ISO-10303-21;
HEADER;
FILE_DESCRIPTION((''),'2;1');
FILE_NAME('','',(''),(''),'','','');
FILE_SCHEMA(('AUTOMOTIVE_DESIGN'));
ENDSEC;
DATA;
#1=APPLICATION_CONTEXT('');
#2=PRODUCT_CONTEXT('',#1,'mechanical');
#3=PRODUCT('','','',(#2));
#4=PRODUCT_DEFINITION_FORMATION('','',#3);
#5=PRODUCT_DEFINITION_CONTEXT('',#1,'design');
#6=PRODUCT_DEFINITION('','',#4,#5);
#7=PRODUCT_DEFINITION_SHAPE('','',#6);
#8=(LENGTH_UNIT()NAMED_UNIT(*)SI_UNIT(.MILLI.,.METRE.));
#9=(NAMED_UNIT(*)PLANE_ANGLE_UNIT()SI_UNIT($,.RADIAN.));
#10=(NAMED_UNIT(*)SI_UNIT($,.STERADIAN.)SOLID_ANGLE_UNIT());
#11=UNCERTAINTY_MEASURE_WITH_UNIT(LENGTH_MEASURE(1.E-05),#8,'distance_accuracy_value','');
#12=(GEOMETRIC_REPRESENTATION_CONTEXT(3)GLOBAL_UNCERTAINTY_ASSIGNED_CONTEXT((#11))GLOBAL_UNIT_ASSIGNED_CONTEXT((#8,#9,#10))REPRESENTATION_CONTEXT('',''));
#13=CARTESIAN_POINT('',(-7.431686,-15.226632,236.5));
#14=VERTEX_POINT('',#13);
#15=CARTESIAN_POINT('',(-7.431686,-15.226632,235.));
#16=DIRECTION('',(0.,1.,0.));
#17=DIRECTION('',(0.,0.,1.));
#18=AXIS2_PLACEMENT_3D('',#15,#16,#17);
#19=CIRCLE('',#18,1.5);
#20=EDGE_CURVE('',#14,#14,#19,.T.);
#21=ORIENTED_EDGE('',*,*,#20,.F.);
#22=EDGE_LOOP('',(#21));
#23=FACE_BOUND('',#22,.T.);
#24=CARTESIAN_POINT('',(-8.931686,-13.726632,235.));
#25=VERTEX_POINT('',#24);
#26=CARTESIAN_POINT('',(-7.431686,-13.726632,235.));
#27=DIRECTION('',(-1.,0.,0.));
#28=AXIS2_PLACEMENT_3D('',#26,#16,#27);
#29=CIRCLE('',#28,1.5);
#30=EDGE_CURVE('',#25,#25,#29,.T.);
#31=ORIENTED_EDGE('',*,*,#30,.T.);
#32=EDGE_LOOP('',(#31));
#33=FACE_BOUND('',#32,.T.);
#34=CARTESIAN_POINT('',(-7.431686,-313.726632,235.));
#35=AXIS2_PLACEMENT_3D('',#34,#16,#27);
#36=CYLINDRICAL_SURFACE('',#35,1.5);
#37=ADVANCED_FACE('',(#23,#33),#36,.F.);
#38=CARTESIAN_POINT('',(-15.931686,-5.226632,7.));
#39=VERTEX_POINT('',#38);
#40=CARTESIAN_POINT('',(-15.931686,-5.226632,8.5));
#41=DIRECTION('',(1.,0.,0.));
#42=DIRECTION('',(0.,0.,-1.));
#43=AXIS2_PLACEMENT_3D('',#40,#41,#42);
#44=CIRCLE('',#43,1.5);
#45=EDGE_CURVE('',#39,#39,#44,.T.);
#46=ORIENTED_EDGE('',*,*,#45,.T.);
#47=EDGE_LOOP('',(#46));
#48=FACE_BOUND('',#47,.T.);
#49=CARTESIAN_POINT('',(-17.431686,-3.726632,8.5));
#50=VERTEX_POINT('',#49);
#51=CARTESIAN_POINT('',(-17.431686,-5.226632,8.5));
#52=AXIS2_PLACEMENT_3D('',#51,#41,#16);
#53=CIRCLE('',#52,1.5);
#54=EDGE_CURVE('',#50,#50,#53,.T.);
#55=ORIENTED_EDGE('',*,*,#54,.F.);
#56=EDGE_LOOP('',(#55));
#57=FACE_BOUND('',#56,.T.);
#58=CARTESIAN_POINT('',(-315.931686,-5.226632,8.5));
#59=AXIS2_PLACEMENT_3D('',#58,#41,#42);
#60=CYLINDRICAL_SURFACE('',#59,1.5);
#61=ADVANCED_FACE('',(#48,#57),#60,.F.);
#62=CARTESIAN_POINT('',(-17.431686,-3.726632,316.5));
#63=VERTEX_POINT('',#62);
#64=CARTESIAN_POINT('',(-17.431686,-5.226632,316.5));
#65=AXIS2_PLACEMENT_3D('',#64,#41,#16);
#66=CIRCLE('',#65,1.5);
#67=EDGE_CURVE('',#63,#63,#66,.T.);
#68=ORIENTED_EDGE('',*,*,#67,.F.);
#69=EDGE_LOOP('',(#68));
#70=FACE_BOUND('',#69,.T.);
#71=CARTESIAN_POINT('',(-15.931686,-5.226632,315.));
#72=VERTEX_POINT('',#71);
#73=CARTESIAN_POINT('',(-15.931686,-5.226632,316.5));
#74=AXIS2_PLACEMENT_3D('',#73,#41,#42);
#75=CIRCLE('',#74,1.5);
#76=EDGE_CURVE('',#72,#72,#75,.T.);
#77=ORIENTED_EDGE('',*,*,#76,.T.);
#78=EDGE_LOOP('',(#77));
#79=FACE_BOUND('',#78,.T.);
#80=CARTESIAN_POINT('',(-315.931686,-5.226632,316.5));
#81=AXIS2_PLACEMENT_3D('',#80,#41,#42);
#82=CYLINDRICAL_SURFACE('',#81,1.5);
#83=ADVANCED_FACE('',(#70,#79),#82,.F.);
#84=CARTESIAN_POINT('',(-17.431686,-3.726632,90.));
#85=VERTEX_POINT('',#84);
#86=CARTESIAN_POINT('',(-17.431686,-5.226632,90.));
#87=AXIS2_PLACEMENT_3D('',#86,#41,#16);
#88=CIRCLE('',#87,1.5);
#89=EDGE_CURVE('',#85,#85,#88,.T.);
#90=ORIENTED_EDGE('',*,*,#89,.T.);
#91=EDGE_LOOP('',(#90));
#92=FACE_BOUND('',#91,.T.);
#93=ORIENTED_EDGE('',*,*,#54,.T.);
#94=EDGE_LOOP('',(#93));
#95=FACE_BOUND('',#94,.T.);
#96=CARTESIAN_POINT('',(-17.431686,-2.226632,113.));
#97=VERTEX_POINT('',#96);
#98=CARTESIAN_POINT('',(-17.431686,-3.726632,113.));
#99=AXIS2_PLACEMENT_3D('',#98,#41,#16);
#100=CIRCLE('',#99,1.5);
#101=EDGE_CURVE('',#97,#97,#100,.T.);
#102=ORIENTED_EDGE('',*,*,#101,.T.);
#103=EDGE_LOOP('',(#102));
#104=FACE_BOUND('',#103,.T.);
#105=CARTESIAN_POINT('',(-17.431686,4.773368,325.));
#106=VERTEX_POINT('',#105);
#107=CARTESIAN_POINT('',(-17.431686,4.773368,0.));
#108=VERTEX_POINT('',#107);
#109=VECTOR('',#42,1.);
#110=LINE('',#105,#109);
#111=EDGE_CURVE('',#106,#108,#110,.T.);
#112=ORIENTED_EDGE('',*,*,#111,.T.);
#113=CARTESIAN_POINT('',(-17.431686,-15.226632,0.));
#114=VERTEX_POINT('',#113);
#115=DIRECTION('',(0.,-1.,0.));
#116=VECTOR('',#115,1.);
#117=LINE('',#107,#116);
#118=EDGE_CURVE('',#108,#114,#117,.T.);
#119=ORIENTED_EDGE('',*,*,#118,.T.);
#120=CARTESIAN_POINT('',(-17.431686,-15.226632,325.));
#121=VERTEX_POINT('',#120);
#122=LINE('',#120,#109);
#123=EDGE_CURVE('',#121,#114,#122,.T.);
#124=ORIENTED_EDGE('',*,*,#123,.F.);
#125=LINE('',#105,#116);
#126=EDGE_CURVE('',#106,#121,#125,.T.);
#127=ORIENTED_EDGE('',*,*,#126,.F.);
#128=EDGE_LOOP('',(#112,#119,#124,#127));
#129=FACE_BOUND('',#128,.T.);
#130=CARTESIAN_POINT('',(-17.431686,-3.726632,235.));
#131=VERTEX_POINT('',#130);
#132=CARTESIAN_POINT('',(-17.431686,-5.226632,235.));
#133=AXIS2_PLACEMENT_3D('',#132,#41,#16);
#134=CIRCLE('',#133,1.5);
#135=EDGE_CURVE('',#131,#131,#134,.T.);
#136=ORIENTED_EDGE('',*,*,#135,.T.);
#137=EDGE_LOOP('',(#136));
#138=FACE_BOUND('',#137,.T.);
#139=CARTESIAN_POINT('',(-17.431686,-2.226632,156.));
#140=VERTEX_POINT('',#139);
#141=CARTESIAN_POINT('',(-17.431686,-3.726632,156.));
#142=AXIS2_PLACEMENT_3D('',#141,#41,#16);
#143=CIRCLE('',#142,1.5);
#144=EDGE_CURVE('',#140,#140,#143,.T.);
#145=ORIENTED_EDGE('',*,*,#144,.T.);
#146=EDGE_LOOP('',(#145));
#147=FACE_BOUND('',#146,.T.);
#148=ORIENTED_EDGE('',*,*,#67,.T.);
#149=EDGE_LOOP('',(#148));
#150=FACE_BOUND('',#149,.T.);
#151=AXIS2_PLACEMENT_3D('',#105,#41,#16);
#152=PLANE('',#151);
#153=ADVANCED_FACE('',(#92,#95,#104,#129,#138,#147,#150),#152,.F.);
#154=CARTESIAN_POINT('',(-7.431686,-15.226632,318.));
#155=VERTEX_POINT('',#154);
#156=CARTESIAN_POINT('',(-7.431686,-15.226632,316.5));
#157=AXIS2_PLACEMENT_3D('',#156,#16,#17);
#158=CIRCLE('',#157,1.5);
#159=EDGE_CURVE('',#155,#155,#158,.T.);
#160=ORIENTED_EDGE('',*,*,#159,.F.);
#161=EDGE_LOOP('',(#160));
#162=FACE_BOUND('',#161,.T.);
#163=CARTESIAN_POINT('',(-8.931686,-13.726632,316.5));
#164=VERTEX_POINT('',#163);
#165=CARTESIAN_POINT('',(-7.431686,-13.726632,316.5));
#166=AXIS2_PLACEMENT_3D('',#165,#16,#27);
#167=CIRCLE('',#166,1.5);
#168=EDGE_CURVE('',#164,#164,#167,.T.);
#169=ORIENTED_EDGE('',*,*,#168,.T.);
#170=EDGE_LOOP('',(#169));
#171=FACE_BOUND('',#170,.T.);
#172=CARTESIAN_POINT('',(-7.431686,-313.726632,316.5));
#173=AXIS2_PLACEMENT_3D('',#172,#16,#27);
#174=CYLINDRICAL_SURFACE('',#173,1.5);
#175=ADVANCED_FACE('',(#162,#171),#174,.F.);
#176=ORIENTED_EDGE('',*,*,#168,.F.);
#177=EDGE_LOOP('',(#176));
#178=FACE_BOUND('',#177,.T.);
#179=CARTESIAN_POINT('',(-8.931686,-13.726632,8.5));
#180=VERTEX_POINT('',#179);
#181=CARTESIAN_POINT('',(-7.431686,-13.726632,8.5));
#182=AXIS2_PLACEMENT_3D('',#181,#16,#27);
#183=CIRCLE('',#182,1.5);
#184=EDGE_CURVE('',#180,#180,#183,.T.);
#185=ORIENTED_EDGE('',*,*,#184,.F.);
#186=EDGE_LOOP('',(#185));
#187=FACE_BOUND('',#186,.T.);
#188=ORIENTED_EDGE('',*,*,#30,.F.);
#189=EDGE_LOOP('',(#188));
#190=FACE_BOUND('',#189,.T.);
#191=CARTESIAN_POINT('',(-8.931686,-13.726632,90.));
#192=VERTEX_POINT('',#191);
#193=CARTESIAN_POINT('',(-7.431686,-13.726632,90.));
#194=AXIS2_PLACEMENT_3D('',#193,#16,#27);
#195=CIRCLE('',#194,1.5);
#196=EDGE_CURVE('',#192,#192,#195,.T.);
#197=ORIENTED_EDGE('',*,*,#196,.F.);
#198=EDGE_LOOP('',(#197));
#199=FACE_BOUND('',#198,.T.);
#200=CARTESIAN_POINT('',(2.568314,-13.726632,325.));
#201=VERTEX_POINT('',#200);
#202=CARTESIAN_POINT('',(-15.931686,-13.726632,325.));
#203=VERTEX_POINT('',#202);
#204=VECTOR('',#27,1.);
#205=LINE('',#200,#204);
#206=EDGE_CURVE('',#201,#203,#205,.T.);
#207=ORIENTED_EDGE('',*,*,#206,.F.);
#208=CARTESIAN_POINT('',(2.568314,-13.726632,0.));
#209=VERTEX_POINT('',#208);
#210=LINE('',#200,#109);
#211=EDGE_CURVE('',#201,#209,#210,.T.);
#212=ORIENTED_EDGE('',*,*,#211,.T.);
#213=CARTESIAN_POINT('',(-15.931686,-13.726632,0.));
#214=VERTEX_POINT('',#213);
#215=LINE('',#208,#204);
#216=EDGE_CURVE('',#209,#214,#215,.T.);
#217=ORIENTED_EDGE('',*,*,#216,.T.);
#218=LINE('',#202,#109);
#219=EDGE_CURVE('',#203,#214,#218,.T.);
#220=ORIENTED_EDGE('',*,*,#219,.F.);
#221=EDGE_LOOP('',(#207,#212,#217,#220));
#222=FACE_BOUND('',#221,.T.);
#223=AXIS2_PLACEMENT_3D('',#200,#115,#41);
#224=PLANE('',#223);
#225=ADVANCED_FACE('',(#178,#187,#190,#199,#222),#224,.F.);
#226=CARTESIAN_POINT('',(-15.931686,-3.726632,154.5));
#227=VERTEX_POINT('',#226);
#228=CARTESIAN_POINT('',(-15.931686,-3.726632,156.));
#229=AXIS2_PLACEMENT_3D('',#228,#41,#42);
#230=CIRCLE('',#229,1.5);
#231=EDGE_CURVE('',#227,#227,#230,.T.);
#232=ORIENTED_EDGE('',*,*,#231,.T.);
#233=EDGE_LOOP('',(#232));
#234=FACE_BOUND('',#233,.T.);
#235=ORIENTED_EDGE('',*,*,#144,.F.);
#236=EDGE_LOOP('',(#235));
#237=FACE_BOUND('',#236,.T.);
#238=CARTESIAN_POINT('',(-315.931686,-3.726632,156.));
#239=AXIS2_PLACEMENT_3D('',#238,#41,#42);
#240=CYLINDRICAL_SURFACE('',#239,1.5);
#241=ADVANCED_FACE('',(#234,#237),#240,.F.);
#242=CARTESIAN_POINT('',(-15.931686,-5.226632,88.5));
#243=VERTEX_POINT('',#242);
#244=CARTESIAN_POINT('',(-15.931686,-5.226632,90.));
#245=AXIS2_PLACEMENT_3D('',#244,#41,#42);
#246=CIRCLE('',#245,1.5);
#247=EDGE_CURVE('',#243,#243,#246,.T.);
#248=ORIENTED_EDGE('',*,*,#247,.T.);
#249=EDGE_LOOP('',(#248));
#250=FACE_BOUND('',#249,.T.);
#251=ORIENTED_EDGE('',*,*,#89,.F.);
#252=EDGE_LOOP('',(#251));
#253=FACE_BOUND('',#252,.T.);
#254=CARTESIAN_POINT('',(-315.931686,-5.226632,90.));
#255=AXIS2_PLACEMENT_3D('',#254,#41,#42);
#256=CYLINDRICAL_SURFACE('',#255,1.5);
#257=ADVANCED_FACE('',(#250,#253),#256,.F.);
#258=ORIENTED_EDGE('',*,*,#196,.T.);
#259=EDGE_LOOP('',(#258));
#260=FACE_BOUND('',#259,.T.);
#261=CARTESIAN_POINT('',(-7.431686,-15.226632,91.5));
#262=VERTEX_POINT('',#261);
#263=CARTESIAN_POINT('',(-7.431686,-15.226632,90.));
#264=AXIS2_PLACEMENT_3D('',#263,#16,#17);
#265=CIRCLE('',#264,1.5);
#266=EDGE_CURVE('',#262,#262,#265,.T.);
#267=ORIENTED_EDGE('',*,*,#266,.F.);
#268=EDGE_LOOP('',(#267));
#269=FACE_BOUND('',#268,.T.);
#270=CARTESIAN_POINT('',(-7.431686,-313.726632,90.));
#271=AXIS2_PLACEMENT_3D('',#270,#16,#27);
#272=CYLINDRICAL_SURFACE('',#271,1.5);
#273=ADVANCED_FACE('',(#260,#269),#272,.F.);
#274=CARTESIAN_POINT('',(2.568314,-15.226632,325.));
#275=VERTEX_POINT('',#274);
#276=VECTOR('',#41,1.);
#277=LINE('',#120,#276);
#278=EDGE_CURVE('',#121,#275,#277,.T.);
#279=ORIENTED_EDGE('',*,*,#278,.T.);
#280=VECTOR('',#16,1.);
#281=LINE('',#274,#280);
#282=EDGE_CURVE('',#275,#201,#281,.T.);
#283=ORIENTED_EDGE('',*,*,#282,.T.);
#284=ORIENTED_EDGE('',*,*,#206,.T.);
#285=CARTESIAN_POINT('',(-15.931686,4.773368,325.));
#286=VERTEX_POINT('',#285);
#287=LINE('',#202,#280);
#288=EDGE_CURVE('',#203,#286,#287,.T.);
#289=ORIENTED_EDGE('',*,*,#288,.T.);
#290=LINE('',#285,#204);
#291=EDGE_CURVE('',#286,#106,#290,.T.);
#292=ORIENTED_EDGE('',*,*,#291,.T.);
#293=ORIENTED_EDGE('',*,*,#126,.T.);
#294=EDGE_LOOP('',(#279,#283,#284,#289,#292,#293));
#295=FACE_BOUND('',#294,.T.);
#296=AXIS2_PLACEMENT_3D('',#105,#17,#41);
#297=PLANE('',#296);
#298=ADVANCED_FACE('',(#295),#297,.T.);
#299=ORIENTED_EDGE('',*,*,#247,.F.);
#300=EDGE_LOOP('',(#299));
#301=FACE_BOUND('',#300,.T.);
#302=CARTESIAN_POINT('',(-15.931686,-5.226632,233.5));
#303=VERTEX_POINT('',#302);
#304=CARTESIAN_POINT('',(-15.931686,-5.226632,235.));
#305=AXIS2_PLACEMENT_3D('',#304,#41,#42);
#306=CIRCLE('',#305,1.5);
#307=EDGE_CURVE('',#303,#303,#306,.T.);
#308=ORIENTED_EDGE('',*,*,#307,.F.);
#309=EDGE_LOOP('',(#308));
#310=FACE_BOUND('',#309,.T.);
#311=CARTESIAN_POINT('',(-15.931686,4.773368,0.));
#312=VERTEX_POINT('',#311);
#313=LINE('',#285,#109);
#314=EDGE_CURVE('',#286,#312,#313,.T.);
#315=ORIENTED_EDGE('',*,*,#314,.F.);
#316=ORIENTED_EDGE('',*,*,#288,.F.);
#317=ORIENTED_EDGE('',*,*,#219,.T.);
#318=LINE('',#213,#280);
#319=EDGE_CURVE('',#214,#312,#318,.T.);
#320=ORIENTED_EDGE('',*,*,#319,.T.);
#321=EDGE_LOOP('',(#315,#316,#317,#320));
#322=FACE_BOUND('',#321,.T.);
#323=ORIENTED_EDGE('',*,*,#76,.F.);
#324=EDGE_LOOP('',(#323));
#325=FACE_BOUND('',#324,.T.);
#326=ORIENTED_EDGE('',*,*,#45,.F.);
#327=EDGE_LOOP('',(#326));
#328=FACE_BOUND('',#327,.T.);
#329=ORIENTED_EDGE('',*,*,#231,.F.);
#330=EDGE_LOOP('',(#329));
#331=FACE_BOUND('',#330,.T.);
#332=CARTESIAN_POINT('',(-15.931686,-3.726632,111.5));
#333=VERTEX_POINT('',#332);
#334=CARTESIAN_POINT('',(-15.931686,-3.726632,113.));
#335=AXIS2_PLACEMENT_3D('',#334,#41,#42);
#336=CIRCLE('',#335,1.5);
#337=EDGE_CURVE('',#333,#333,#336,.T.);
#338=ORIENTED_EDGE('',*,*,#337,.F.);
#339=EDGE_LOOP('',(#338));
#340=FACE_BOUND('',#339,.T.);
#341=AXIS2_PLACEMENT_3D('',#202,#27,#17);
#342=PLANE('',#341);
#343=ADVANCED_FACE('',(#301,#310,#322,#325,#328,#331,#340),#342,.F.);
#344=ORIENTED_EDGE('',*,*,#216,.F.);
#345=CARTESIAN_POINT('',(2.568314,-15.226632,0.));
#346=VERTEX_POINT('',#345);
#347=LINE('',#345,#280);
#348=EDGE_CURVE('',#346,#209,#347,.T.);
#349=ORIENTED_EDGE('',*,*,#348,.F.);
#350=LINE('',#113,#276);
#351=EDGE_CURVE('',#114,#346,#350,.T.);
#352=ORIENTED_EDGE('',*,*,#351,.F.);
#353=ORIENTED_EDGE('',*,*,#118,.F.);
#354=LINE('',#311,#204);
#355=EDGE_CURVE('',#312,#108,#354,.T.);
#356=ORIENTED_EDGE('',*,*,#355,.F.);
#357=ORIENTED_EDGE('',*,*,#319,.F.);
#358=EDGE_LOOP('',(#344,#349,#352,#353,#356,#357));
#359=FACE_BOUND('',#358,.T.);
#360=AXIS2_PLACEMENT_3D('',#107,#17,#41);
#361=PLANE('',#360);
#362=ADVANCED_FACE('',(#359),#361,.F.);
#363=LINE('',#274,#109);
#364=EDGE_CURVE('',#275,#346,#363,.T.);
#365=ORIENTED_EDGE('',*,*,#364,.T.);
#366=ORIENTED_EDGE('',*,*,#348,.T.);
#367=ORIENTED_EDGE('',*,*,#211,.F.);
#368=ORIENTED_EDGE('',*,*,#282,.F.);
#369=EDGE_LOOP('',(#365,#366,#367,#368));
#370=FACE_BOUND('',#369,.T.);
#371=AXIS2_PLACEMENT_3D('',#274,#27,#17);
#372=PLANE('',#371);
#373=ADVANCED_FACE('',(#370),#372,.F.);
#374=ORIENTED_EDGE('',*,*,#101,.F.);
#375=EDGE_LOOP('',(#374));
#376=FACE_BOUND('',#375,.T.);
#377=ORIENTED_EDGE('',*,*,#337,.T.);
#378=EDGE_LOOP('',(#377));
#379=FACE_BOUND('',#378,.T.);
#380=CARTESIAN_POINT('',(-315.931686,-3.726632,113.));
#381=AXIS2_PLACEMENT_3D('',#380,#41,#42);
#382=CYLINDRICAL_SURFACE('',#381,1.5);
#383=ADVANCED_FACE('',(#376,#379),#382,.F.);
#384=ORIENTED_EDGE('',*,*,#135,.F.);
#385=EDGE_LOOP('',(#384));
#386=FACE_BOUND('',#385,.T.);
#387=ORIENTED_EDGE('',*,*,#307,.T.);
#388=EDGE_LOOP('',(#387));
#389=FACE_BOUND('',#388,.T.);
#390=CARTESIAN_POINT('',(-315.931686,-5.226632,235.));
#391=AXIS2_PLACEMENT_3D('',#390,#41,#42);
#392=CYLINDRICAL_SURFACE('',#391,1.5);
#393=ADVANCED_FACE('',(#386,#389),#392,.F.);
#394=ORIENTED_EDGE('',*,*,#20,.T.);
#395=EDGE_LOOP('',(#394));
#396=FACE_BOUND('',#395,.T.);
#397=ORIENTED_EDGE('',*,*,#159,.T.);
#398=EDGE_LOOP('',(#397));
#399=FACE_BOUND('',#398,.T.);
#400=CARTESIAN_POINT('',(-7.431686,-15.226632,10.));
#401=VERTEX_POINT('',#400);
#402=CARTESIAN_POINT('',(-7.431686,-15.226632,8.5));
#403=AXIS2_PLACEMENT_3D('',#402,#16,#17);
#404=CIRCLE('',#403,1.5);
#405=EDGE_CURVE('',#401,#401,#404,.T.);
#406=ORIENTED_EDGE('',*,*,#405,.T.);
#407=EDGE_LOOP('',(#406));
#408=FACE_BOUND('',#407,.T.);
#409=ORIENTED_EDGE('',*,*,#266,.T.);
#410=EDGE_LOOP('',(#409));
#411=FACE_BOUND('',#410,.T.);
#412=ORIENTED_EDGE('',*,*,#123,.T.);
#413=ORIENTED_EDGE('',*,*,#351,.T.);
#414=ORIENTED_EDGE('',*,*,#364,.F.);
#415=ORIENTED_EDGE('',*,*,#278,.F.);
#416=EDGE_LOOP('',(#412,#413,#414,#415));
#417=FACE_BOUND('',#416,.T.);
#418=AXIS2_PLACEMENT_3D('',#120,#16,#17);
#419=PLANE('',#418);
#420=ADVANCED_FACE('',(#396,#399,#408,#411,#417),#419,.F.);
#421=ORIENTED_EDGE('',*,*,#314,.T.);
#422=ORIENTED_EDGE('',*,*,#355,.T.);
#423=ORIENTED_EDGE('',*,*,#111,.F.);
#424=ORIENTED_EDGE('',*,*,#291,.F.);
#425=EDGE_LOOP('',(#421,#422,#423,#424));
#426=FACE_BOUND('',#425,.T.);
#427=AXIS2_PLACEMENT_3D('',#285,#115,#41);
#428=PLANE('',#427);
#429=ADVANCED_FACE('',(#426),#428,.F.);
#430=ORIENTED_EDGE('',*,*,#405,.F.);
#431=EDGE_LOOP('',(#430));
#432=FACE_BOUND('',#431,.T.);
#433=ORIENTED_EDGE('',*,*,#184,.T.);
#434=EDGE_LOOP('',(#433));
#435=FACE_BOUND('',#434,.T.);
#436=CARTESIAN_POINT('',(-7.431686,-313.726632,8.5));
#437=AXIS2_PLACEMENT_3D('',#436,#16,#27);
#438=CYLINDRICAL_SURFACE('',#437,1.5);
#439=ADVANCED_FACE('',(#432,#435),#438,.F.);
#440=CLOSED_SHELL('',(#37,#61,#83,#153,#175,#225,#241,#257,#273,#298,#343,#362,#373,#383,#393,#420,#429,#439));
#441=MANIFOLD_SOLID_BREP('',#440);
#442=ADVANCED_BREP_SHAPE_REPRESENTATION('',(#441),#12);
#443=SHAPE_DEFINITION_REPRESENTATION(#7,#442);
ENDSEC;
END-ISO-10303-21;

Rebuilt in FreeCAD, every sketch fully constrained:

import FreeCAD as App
import Part
import Sketcher

V = App.Vector

doc = App.newDocument("Part")
body = doc.addObject("PartDesign::Body", "Body")

sketch1 = body.newObject("Sketcher::SketchObject", "Sketch")
sketch1.AttachmentSupport = (doc.getObject("XY_Plane"), [""])
sketch1.MapMode = "FlatFace"
sketch1.addGeometry([
    Part.LineSegment(V(-17.4, 4.8, 0), V(-17.4, -15.2, 0)),
    Part.LineSegment(V(-17.4, -15.2, 0), V(2.6, -15.2, 0)),
    Part.LineSegment(V(2.6, -15.2, 0), V(2.6, -13.7, 0)),
    Part.LineSegment(V(2.6, -13.7, 0), V(-15.9, -13.7, 0)),
    Part.LineSegment(V(-15.9, -13.7, 0), V(-15.9, 4.8, 0)),
    Part.LineSegment(V(-15.9, 4.8, 0), V(-17.4, 4.8, 0)),
], False)
sketch1.addConstraint([
    Sketcher.Constraint("Coincident", 0, 2, 1, 1),
    Sketcher.Constraint("Coincident", 1, 2, 2, 1),
    Sketcher.Constraint("Coincident", 2, 2, 3, 1),
    Sketcher.Constraint("Coincident", 3, 2, 4, 1),
    Sketcher.Constraint("Coincident", 4, 2, 5, 1),
    Sketcher.Constraint("Coincident", 5, 2, 0, 1),
    Sketcher.Constraint("Vertical", 0),
    Sketcher.Constraint("Horizontal", 1),
    Sketcher.Constraint("Vertical", 2),
    Sketcher.Constraint("Horizontal", 3),
    Sketcher.Constraint("Vertical", 4),
    Sketcher.Constraint("Horizontal", 5),
    Sketcher.Constraint("Equal", 1, 0),
    Sketcher.Constraint("Equal", 5, 2),
    Sketcher.Constraint("DistanceX", 1, 1, 1, 2, 20.0),
    Sketcher.Constraint("DistanceX", 3, 2, 3, 1, 18.5),
    Sketcher.Constraint("DistanceY", 0, 2, -1, 1, 15.226632),
    Sketcher.Constraint("DistanceX", 0, 2, -1, 1, 17.431686),
])
pad1 = body.newObject("PartDesign::Pad", "Pad")
pad1.Profile = sketch1
pad1.Length = 325

sketch2 = body.newObject("Sketcher::SketchObject", "Sketch001")
sketch2.AttachmentSupport = (doc.getObject("XZ_Plane"), [""])
sketch2.MapMode = "FlatFace"
sketch2.AttachmentOffset = App.Placement(V(0, 0, 13.726632), App.Rotation())
sketch2.addGeometry([
    Part.Circle(V(-7.4, 8.5, 0), V(0, 0, 1), 1.5),
    Part.Circle(V(-7.4, 316.5, 0), V(0, 0, 1), 1.5),
    Part.Circle(V(-7.4, 235, 0), V(0, 0, 1), 1.5),
    Part.Circle(V(-7.4, 90, 0), V(0, 0, 1), 1.5),
], False)
sketch2.addConstraint([
    Sketcher.Constraint("Equal", 0, 1),
    Sketcher.Constraint("Equal", 1, 2),
    Sketcher.Constraint("Equal", 2, 3),
    Sketcher.Constraint("Vertical", 0, 3, 1, 3),
    Sketcher.Constraint("Vertical", 1, 3, 2, 3),
    Sketcher.Constraint("Vertical", 2, 3, 3, 3),
    Sketcher.Constraint("Diameter", 0, 3.0),
    Sketcher.Constraint("DistanceY", -1, 1, 2, 3, 235.0),
    Sketcher.Constraint("DistanceY", -1, 1, 3, 3, 90.0),
    Sketcher.Constraint("DistanceY", 0, 3, 1, 3, 308.0),
    Sketcher.Constraint("DistanceY", -1, 1, 0, 3, 8.5),
    Sketcher.Constraint("DistanceX", 0, 3, -1, 1, 7.431686),
])
pocket1 = body.newObject("PartDesign::Pocket", "Pocket")
pocket1.Profile = sketch2
pocket1.Length = 300
pocket1.Reversed = True

sketch3 = body.newObject("Sketcher::SketchObject", "Sketch002")
sketch3.AttachmentSupport = (doc.getObject("YZ_Plane"), [""])
sketch3.MapMode = "FlatFace"
sketch3.AttachmentOffset = App.Placement(V(0, 0, -15.931686), App.Rotation())
sketch3.addGeometry([
    Part.Circle(V(-5.2, 316.5, 0), V(0, 0, 1), 1.5),
    Part.Circle(V(-5.2, 8.5, 0), V(0, 0, 1), 1.5),
    Part.Circle(V(-5.2, 235, 0), V(0, 0, 1), 1.5),
    Part.Circle(V(-5.2, 90, 0), V(0, 0, 1), 1.5),
    Part.Circle(V(-3.7, 113, 0), V(0, 0, 1), 1.5),
    Part.Circle(V(-3.7, 156, 0), V(0, 0, 1), 1.5),
], False)
sketch3.addConstraint([
    Sketcher.Constraint("Equal", 0, 1),
    Sketcher.Constraint("Equal", 1, 2),
    Sketcher.Constraint("Equal", 2, 3),
    Sketcher.Constraint("Equal", 3, 4),
    Sketcher.Constraint("Equal", 4, 5),
    Sketcher.Constraint("Vertical", 0, 3, 1, 3),
    Sketcher.Constraint("Vertical", 1, 3, 2, 3),
    Sketcher.Constraint("Vertical", 2, 3, 3, 3),
    Sketcher.Constraint("Vertical", 4, 3, 5, 3),
    Sketcher.Constraint("Diameter", 0, 3.0),
    Sketcher.Constraint("DistanceY", -1, 1, 2, 3, 235.0),
    Sketcher.Constraint("DistanceY", -1, 1, 3, 3, 90.0),
    Sketcher.Constraint("DistanceY", -1, 1, 4, 3, 113.0),
    Sketcher.Constraint("DistanceY", -1, 1, 5, 3, 156.0),
    Sketcher.Constraint("DistanceY", 1, 3, 0, 3, 308.0),
    Sketcher.Constraint("DistanceY", -1, 1, 0, 3, 316.5),
    Sketcher.Constraint("DistanceX", 3, 3, 4, 3, 1.5),
    Sketcher.Constraint("DistanceX", 0, 3, -1, 1, 5.226632),
])
pocket2 = body.newObject("PartDesign::Pocket", "Pocket001")
pocket2.Profile = sketch3
pocket2.Length = 300

doc.recompute()
